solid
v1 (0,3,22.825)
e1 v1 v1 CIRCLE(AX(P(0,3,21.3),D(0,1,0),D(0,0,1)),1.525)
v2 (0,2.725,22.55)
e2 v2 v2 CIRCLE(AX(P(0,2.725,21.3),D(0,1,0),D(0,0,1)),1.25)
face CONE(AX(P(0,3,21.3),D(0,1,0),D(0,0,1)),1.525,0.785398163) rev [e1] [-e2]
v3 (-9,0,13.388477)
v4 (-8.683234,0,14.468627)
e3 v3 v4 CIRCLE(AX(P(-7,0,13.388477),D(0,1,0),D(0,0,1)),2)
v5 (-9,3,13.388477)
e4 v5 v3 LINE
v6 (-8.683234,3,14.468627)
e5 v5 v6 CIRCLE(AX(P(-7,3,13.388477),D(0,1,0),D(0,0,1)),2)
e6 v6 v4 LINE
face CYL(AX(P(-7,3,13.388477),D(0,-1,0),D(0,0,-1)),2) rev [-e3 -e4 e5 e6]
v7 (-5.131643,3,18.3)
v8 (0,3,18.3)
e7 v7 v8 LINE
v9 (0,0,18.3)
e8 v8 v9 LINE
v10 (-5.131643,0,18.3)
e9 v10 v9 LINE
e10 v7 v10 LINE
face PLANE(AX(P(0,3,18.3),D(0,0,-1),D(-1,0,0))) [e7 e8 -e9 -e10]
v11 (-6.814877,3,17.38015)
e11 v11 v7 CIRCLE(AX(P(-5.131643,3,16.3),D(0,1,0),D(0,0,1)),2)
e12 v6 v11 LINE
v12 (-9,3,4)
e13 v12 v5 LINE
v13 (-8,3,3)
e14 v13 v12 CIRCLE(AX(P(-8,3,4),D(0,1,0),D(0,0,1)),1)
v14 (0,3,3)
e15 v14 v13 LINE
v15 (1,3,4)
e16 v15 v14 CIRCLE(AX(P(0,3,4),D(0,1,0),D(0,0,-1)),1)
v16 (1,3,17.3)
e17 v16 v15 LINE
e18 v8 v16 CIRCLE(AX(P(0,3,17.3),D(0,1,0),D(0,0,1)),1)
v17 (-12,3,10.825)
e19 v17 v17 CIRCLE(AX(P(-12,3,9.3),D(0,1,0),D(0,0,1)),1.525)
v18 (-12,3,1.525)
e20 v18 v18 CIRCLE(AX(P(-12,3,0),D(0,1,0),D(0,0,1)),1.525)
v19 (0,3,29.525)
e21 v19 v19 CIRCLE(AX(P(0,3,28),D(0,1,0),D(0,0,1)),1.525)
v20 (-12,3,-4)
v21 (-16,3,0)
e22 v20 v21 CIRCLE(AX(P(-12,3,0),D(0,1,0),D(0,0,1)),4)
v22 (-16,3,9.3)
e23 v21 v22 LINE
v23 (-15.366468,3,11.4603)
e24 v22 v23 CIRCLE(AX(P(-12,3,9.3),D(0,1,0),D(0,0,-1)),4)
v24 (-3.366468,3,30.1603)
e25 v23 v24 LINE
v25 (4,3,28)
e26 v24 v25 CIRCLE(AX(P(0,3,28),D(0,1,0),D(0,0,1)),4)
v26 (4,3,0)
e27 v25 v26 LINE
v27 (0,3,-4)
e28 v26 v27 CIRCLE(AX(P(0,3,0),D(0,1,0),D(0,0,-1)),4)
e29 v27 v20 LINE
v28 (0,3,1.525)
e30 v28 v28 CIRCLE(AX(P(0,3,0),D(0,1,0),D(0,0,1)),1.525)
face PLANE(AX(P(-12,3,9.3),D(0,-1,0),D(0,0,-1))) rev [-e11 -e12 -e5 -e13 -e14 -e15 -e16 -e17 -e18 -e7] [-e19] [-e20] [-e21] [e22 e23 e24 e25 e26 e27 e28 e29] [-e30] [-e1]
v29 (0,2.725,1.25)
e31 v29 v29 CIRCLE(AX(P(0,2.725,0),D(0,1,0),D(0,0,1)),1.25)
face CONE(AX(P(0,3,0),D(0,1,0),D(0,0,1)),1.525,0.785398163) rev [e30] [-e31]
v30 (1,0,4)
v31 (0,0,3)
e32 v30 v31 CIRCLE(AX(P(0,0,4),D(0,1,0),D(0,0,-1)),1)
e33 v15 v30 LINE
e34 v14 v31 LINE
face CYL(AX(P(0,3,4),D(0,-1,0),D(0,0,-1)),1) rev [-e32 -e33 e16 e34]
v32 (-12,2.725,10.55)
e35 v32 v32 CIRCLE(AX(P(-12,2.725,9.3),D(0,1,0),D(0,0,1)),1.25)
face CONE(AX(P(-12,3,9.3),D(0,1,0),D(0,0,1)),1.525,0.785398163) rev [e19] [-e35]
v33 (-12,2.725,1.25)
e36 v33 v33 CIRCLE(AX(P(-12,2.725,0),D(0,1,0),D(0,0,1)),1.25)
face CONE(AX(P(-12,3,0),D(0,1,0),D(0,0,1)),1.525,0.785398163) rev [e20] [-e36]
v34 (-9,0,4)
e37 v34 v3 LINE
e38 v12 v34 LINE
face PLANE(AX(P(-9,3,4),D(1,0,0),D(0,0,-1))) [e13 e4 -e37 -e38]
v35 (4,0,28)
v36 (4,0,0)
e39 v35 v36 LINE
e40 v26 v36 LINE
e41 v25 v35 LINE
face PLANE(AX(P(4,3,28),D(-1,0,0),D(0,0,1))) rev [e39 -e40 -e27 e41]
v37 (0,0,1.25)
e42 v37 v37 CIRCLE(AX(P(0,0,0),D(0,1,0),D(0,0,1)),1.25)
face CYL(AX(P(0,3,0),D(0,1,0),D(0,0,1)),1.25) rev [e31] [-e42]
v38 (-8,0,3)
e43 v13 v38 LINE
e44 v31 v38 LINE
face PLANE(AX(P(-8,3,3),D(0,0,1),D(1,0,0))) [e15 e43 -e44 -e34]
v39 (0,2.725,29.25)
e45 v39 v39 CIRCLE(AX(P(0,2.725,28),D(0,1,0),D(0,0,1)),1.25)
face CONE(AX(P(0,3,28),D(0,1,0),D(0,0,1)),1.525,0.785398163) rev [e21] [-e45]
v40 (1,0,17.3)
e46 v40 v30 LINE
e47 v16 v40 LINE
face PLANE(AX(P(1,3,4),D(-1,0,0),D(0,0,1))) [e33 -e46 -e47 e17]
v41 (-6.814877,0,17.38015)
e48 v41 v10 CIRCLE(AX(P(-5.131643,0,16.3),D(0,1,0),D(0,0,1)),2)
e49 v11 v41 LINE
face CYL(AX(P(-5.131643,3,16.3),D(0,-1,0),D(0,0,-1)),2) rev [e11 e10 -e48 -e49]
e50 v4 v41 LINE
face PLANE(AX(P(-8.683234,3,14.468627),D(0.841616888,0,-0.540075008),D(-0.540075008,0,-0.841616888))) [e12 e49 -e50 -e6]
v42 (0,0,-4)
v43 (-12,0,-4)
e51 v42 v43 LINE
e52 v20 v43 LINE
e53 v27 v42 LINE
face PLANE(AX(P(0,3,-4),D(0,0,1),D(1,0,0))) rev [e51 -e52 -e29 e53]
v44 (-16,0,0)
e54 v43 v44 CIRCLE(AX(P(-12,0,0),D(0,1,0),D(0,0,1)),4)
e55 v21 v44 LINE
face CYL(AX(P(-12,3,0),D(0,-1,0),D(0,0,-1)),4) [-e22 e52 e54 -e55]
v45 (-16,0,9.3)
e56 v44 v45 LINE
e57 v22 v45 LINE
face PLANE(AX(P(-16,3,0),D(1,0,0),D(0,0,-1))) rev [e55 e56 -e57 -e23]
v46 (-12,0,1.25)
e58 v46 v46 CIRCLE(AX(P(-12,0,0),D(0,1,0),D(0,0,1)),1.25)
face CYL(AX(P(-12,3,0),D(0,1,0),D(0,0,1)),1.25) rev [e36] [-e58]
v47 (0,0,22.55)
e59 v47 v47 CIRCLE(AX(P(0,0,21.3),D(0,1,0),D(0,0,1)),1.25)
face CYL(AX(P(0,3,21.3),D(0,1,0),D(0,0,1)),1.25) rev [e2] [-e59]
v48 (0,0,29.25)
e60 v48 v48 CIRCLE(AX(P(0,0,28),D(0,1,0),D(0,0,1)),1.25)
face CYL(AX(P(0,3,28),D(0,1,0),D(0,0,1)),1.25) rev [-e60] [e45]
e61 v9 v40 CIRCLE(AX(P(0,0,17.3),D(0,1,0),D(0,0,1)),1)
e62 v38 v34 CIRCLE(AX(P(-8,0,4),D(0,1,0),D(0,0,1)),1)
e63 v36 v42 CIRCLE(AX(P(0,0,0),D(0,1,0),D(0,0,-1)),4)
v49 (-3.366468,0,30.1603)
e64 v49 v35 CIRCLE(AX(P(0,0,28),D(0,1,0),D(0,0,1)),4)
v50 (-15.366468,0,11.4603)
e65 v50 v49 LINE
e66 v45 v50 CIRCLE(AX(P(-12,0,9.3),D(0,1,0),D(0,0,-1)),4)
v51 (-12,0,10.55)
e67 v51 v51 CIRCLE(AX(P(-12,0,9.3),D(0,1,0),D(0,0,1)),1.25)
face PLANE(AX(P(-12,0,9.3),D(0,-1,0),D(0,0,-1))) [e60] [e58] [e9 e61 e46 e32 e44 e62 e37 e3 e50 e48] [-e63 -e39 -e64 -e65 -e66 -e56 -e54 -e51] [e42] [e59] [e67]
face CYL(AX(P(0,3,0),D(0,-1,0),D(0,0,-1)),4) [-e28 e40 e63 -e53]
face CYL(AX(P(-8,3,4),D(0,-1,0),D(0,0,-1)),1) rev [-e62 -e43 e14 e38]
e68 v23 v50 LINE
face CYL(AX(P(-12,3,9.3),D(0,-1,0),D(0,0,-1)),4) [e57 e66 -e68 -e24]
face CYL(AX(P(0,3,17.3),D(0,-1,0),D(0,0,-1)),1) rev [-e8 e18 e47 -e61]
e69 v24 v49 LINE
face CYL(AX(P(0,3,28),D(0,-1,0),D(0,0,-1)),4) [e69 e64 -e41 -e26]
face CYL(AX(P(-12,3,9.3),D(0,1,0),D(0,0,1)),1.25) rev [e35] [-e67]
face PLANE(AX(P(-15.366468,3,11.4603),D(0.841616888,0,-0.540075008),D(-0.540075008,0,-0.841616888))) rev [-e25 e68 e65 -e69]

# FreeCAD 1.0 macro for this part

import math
import FreeCAD as App
import Part
import Sketcher
from FreeCAD import Vector

doc = App.newDocument("Part")
params = doc.addObject("Spreadsheet::Sheet", "Params")
for row, (alias, value) in enumerate([
    ("sketch1_radius", "4 mm"),
    ("sketch1_radius2", "2 mm"),
    ("sketch1_radius3", "1 mm"),
    ("sketch1_width", "12 mm"),
    ("sketch1_width2", "8 mm"),
    ("pad1_length", "3 mm"),
    ("sketch2_diameter", "2.5 mm"),
    ("hole_diameter", "2.5 mm"),
    ("hole_csink_diameter", "3.05 mm"),
], start=1):
    params.set(f"A{row}", alias)
    params.set(f"B{row}", "=" + value)
    params.setAlias(f"B{row}", alias)

body = doc.addObject("PartDesign::Body", "Body")

# Sketch on XZ plane
sketch1 = body.newObject("Sketcher::SketchObject", "Sketch")
sketch1.AttachmentSupport = (doc.getObject("XZ_Plane"), [""])
sketch1.MapMode = "FlatFace"
sketch1.addGeometry(Part.LineSegment(Vector(4, 28, 0), Vector(4, 0, 0)), False)
sketch1.addGeometry(Part.ArcOfCircle(Part.Circle(Vector(0, 0, 0), Vector(0, 0, 1), 4), math.radians(-90), math.radians(0)), False)
sketch1.addGeometry(Part.LineSegment(Vector(0, -4, 0), Vector(-12, -4, 0)), False)
sketch1.addGeometry(Part.ArcOfCircle(Part.Circle(Vector(-12, 0, 0), Vector(0, 0, 1), 4), math.radians(180), math.radians(270)), False)
sketch1.addGeometry(Part.LineSegment(Vector(-16, 0, 0), Vector(-16, 9.3, 0)), False)
sketch1.addGeometry(Part.ArcOfCircle(Part.Circle(Vector(-12, 9.3, 0), Vector(0, 0, 1), 4), math.radians(147), math.radians(180)), False)
sketch1.addGeometry(Part.LineSegment(Vector(-15.4, 11.5, 0), Vector(-3.4, 30.2, 0)), False)
sketch1.addGeometry(Part.ArcOfCircle(Part.Circle(Vector(0, 28, 0), Vector(0, 0, 1), 4), math.radians(0), math.radians(147)), False)
sketch1.addGeometry(Part.LineSegment(Vector(-6.8, 17.4, 0), Vector(-8.7, 14.5, 0)), False)
sketch1.addGeometry(Part.ArcOfCircle(Part.Circle(Vector(-7, 13.4, 0), Vector(0, 0, 1), 2), math.radians(147), math.radians(180)), False)
sketch1.addGeometry(Part.LineSegment(Vector(-9, 13.4, 0), Vector(-9, 4, 0)), False)
sketch1.addGeometry(Part.ArcOfCircle(Part.Circle(Vector(-8, 4, 0), Vector(0, 0, 1), 1), math.radians(-180), math.radians(-90)), False)
sketch1.addGeometry(Part.LineSegment(Vector(-8, 3, 0), Vector(0, 3, 0)), False)
sketch1.addGeometry(Part.ArcOfCircle(Part.Circle(Vector(0, 4, 0), Vector(0, 0, 1), 1), math.radians(-90), math.radians(0)), False)
sketch1.addGeometry(Part.LineSegment(Vector(1, 4, 0), Vector(1, 17.3, 0)), False)
sketch1.addGeometry(Part.ArcOfCircle(Part.Circle(Vector(0, 17.3, 0), Vector(0, 0, 1), 1), math.radians(0), math.radians(90)), False)
sketch1.addGeometry(Part.LineSegment(Vector(0, 18.3, 0), Vector(-5.1, 18.3, 0)), False)
sketch1.addGeometry(Part.ArcOfCircle(Part.Circle(Vector(-5.1, 16.3, 0), Vector(0, 0, 1), 2), math.radians(90), math.radians(147)), False)
sketch1.addConstraint(Sketcher.Constraint("Tangent", 0, 2, 1, 2))
sketch1.addConstraint(Sketcher.Constraint("Tangent", 1, 1, 2, 1))
sketch1.addConstraint(Sketcher.Constraint("Tangent", 2, 2, 3, 2))
sketch1.addConstraint(Sketcher.Constraint("Tangent", 3, 1, 4, 1))
sketch1.addConstraint(Sketcher.Constraint("Tangent", 4, 2, 5, 2))
sketch1.addConstraint(Sketcher.Constraint("Tangent", 5, 1, 6, 1))
sketch1.addConstraint(Sketcher.Constraint("Tangent", 6, 2, 7, 2))
sketch1.addConstraint(Sketcher.Constraint("Tangent", 7, 1, 0, 1))
sketch1.addConstraint(Sketcher.Constraint("Tangent", 8, 2, 9, 1))
sketch1.addConstraint(Sketcher.Constraint("Tangent", 9, 2, 10, 1))
sketch1.addConstraint(Sketcher.Constraint("Tangent", 10, 2, 11, 1))
sketch1.addConstraint(Sketcher.Constraint("Tangent", 11, 2, 12, 1))
sketch1.addConstraint(Sketcher.Constraint("Tangent", 12, 2, 13, 1))
sketch1.addConstraint(Sketcher.Constraint("Tangent", 13, 2, 14, 1))
sketch1.addConstraint(Sketcher.Constraint("Tangent", 14, 2, 15, 1))
sketch1.addConstraint(Sketcher.Constraint("Tangent", 15, 2, 16, 1))
sketch1.addConstraint(Sketcher.Constraint("Tangent", 16, 2, 17, 1))
sketch1.addConstraint(Sketcher.Constraint("Tangent", 17, 2, 8, 1))
sketch1.addConstraint(Sketcher.Constraint("Vertical", 0))
sketch1.addConstraint(Sketcher.Constraint("Horizontal", 2))
sketch1.addConstraint(Sketcher.Constraint("Vertical", 4))
sketch1.addConstraint(Sketcher.Constraint("Vertical", 10))
sketch1.addConstraint(Sketcher.Constraint("Horizontal", 12))
sketch1.addConstraint(Sketcher.Constraint("Vertical", 14))
sketch1.addConstraint(Sketcher.Constraint("Horizontal", 16))
sketch1.addConstraint(Sketcher.Constraint("Coincident", 1, 3, -1, 1))
sketch1.addConstraint(Sketcher.Constraint("Equal", 1, 3))
sketch1.addConstraint(Sketcher.Constraint("Equal", 3, 5))
sketch1.addConstraint(Sketcher.Constraint("Equal", 5, 7))
sketch1.addConstraint(Sketcher.Constraint("Equal", 11, 13))
sketch1.addConstraint(Sketcher.Constraint("Equal", 13, 15))
sketch1.addConstraint(Sketcher.Constraint("Equal", 9, 17))
sketch1.addConstraint(Sketcher.Constraint("PointOnObject", 13, 3, -2))
sketch1.addConstraint(Sketcher.Constraint("Parallel", 6, 8))
sketch1.addConstraint(Sketcher.Constraint("Radius", 1, 4.0))
sketch1.addConstraint(Sketcher.Constraint("Radius", 9, 2.0))
sketch1.addConstraint(Sketcher.Constraint("Radius", 11, 1.0))
sketch1.addConstraint(Sketcher.Constraint("DistanceX", 2, 2, 2, 1, 12.0))
sketch1.addConstraint(Sketcher.Constraint("DistanceX", 12, 1, 12, 2, 8.0))
sketch1.addConstraint(Sketcher.Constraint("DistanceY", 0, 2, 0, 1, 28.0))
sketch1.addConstraint(Sketcher.Constraint("DistanceY", 4, 1, 4, 2, 9.3))
sketch1.addConstraint(Sketcher.Constraint("DistanceY", 14, 1, 14, 2, 13.3))
sketch1.addConstraint(Sketcher.Constraint("DistanceY", -1, 1, 11, 3, 4.0))
sketch1.addConstraint(Sketcher.Constraint("Distance", 8, 3.459439))
sketch1.setExpression("Constraints[34]", "Params.sketch1_radius")
sketch1.setExpression("Constraints[35]", "Params.sketch1_radius2")
sketch1.setExpression("Constraints[36]", "Params.sketch1_radius3")
sketch1.setExpression("Constraints[37]", "Params.sketch1_width")
sketch1.setExpression("Constraints[38]", "Params.sketch1_width2")
pad1 = body.newObject("PartDesign::Pad", "Pad")
pad1.Profile = sketch1
pad1.setExpression("Length", "Params.pad1_length")
pad1.Reversed = True

# Sketch on XZ plane
sketch2 = body.newObject("Sketcher::SketchObject", "Sketch001")
sketch2.AttachmentSupport = (doc.getObject("XZ_Plane"), [""])
sketch2.MapMode = "FlatFace"
sketch2.AttachmentOffset = App.Placement(Vector(0, 0, -3), App.Rotation())
sketch2.addGeometry(Part.Circle(Vector(-12, 0, 0), Vector(0, 0, 1), 1.2), False)
sketch2.addGeometry(Part.Circle(Vector(-12, 9.3, 0), Vector(0, 0, 1), 1.2), False)
sketch2.addGeometry(Part.Circle(Vector(0, 0, 0), Vector(0, 0, 1), 1.2), False)
sketch2.addGeometry(Part.Circle(Vector(0, 21.3, 0), Vector(0, 0, 1), 1.2), False)
sketch2.addGeometry(Part.Circle(Vector(0, 28, 0), Vector(0, 0, 1), 1.2), False)
sketch2.addConstraint(Sketcher.Constraint("Coincident", 2, 3, -1, 1))
sketch2.addConstraint(Sketcher.Constraint("Equal", 0, 1))
sketch2.addConstraint(Sketcher.Constraint("Equal", 1, 2))
sketch2.addConstraint(Sketcher.Constraint("Equal", 2, 3))
sketch2.addConstraint(Sketcher.Constraint("Equal", 3, 4))
sketch2.addConstraint(Sketcher.Constraint("PointOnObject", 0, 3, -1))
sketch2.addConstraint(Sketcher.Constraint("PointOnObject", 3, 3, -2))
sketch2.addConstraint(Sketcher.Constraint("PointOnObject", 4, 3, -2))
sketch2.addConstraint(Sketcher.Constraint("Vertical", 0, 3, 1, 3))
sketch2.addConstraint(Sketcher.Constraint("Diameter", 0, 2.5))
sketch2.addConstraint(Sketcher.Constraint("DistanceX", 0, 3, -1, 1, 12.0))
sketch2.addConstraint(Sketcher.Constraint("DistanceY", -1, 1, 4, 3, 28.0))
sketch2.addConstraint(Sketcher.Constraint("DistanceY", 1, 3, 3, 3, 12.0))
sketch2.addConstraint(Sketcher.Constraint("DistanceY", -1, 1, 1, 3, 9.3))
sketch2.setExpression("Constraints[9]", "Params.sketch2_diameter")
doc.recompute()
hole = body.newObject("PartDesign::Hole", "Hole")
hole.Profile = sketch2
hole.ThreadType = "None"
hole.setExpression("Diameter", "Params.hole_diameter")
hole.DepthType = "ThroughAll"
hole.HoleCutType = "Countersink"
hole.setExpression("HoleCutDiameter", "Params.hole_csink_diameter")
hole.HoleCutCountersinkAngle = 90
hole.Reversed = True

doc.recompute()
